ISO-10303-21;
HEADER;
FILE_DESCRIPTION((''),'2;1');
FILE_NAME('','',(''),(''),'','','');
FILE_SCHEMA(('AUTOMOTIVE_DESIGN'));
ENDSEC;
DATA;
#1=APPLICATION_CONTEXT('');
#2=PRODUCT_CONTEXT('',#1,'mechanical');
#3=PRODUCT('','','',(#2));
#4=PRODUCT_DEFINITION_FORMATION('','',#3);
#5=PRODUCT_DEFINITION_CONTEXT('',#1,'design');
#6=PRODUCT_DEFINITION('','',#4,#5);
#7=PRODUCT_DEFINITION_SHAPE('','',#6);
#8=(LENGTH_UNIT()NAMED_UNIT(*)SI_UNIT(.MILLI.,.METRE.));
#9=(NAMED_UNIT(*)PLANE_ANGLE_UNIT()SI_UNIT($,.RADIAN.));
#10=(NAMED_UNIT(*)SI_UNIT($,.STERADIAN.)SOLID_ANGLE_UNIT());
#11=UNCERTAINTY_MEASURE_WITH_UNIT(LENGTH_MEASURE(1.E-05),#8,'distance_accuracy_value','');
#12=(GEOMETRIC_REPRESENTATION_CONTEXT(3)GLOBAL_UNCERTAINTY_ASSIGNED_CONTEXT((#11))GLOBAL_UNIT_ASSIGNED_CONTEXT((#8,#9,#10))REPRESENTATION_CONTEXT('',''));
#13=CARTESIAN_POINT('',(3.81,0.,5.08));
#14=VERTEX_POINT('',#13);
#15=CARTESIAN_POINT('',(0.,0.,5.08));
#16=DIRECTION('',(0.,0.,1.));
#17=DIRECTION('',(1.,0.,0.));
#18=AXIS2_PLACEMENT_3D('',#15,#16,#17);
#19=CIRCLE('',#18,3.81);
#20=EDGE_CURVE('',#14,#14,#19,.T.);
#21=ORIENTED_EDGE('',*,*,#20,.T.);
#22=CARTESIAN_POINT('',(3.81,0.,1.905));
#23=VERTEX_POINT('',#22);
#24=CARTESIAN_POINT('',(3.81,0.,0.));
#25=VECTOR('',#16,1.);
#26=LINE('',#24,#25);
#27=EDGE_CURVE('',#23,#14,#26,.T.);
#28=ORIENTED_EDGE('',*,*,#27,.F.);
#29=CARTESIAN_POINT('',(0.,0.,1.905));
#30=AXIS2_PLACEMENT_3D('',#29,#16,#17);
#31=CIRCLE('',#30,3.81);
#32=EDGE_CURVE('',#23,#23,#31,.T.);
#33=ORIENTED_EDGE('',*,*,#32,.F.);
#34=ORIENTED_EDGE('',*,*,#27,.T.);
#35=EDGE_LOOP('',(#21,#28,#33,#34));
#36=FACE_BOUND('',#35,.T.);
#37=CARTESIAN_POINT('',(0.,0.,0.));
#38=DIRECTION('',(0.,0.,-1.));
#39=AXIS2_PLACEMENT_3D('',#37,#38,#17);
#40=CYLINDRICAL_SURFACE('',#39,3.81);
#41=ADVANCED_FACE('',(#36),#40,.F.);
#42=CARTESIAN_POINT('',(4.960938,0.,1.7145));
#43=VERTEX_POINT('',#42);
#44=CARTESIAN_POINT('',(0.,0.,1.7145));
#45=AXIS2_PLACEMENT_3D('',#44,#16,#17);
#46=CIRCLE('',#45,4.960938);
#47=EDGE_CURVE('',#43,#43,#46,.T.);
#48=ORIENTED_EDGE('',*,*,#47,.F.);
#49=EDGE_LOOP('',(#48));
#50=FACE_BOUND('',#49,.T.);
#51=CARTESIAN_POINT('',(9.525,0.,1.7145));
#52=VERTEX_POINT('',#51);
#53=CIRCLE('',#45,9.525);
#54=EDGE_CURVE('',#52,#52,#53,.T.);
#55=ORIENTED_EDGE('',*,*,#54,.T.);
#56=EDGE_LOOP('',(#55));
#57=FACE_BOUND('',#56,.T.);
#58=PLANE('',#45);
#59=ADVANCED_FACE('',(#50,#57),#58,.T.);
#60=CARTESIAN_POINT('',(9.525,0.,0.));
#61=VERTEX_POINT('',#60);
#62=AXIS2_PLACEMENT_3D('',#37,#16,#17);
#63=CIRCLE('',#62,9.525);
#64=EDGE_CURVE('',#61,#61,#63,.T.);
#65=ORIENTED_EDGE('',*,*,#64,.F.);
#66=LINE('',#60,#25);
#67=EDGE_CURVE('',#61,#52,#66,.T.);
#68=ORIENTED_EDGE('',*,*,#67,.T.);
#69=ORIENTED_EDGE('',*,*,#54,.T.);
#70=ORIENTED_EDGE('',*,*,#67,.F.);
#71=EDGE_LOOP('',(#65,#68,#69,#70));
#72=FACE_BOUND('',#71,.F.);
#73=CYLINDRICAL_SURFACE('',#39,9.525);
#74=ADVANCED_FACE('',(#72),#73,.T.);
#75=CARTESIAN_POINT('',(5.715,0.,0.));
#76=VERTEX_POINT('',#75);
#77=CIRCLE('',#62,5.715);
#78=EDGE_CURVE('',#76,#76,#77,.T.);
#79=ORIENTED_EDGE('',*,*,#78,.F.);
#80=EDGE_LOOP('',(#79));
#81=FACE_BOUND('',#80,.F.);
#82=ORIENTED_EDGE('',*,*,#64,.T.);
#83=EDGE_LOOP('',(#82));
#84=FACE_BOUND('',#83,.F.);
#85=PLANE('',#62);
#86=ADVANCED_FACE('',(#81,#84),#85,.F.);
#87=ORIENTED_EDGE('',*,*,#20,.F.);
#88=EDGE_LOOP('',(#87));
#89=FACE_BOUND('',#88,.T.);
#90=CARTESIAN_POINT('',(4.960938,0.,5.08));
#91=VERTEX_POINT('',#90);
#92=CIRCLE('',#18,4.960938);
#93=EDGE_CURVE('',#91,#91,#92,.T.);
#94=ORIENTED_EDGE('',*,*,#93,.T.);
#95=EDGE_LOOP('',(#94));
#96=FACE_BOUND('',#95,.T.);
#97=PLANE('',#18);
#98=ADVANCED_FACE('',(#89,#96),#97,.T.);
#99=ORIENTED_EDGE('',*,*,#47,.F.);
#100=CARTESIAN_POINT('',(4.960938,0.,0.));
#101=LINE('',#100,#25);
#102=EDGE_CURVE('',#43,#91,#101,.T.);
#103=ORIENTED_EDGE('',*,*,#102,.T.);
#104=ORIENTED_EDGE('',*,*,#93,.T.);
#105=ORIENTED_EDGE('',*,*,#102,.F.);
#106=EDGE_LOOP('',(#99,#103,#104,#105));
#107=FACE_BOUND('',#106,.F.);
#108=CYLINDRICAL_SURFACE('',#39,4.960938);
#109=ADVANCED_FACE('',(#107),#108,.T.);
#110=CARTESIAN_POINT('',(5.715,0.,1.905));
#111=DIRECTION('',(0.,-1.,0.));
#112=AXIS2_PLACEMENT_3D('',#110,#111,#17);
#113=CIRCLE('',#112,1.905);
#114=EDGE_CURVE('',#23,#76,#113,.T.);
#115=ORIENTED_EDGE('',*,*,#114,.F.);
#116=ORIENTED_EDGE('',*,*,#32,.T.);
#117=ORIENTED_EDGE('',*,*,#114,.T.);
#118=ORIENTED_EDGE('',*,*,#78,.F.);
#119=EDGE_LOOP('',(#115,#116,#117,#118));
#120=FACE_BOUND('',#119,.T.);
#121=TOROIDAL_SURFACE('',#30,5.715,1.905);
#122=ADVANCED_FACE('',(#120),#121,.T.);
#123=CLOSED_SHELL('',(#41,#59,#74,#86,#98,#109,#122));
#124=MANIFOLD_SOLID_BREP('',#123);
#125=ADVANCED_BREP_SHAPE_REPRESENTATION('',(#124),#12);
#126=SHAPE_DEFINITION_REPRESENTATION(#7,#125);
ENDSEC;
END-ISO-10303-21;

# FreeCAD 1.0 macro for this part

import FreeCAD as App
import Part
import Sketcher
from FreeCAD import Vector
Q = App.Units.Quantity


def edges_at(feature, points):
    """Names of the edges that pass closest to the given points."""
    edges = feature.Shape.Edges
    near = lambda p: min(range(len(edges)), key=lambda i: edges[i].distToShape(Part.Vertex(*p))[0])
    return sorted({f"Edge{near(p) + 1}" for p in points})

doc = App.newDocument("Part")
body = doc.addObject("PartDesign::Body", "Body")

sketch1 = body.newObject("Sketcher::SketchObject", "Sketch")
sketch1.AttachmentSupport = (doc.getObject("XY_Plane"), [""])
sketch1.MapMode = "FlatFace"
sketch1.addGeometry([
    Part.Circle(Vector(0, 0, 0), Vector(0, 0, 1), 9.5),
    Part.Circle(Vector(0, 0, 0), Vector(0, 0, 1), 5),
], False)
sketch1.addConstraint([
    Sketcher.Constraint("Coincident", 0, 3, -1, 1),
    Sketcher.Constraint("Coincident", 1, 3, -1, 1),
    Sketcher.Constraint("Diameter", 0, Q("0.75 in")),
    Sketcher.Constraint("Diameter", 1, Q("0.390625 in")),
])
pad1 = body.newObject("PartDesign::Pad", "Pad")
pad1.Profile = sketch1
pad1.Length = Q("0.0675 in")

sketch2 = body.newObject("Sketcher::SketchObject", "Sketch001")
sketch2.AttachmentSupport = (doc.getObject("XY_Plane"), [""])
sketch2.MapMode = "FlatFace"
sketch2.addGeometry([
    Part.Circle(Vector(0, 0, 0), Vector(0, 0, 1), 5),
    Part.Circle(Vector(0, 0, 0), Vector(0, 0, 1), 3.8),
], False)
sketch2.addConstraint([
    Sketcher.Constraint("Coincident", 0, 3, -1, 1),
    Sketcher.Constraint("Coincident", 1, 3, -1, 1),
    Sketcher.Constraint("Diameter", 1, Q("0.3 in")),
    Sketcher.Constraint("Diameter", 0, Q("0.390625 in")),
])
pad2 = body.newObject("PartDesign::Pad", "Pad001")
pad2.Profile = sketch2
pad2.Length = Q("0.2 in")
doc.recompute()

fillet = body.newObject("PartDesign::Fillet", "Fillet")
fillet.Base = (pad2, edges_at(pad2, [(-3.81, 0, 0)]))
fillet.Radius = Q("0.075 in")

doc.recompute()
